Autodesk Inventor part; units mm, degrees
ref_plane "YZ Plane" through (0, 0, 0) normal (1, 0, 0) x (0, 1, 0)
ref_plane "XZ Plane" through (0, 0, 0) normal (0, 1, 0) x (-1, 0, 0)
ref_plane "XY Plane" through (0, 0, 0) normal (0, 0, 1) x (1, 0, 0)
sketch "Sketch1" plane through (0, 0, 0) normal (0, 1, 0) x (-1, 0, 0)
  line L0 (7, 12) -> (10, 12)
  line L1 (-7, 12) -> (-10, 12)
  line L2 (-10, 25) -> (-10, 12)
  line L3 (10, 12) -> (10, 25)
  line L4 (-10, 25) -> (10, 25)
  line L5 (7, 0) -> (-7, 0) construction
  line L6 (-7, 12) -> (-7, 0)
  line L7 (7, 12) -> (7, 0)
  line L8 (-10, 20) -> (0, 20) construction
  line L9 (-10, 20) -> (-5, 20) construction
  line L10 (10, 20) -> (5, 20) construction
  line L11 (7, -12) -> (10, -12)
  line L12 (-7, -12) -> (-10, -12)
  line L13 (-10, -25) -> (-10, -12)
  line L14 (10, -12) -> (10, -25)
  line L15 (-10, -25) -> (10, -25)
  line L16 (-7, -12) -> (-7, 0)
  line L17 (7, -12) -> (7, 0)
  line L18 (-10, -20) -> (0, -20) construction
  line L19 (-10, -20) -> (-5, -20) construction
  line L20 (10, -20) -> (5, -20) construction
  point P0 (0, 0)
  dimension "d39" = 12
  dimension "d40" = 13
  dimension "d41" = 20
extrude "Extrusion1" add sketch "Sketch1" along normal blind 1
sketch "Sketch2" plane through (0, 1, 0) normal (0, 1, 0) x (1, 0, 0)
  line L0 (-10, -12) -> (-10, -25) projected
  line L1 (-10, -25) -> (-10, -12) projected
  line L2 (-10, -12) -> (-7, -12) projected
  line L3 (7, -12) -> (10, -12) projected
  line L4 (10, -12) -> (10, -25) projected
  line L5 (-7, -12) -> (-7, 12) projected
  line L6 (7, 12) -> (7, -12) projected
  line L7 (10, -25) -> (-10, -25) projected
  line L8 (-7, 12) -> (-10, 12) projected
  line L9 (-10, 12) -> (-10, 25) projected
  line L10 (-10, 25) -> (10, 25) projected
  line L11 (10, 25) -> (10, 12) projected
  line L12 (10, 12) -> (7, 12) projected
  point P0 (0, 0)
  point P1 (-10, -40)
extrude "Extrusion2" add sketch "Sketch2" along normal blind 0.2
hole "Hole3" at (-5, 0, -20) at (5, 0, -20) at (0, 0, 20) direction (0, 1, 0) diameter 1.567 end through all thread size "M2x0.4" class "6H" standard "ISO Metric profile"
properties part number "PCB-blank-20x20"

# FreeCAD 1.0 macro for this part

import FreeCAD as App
import Part
import Sketcher
from FreeCAD import Vector

doc = App.newDocument("Part")
body = doc.addObject("PartDesign::Body", "Body")

sketch1 = body.newObject("Sketcher::SketchObject", "Sketch")
sketch1.AttachmentSupport = (doc.getObject("XZ_Plane"), [""])
sketch1.MapMode = "FlatFace"
sketch1.addGeometry([
    Part.LineSegment(Vector(-7, -12, 0), Vector(-7, 12, 0)),
    Part.LineSegment(Vector(-7, 12, 0), Vector(-10, 12, 0)),
    Part.LineSegment(Vector(-10, 12, 0), Vector(-10, 25, 0)),
    Part.LineSegment(Vector(-10, 25, 0), Vector(10, 25, 0)),
    Part.LineSegment(Vector(10, 25, 0), Vector(10, 12, 0)),
    Part.LineSegment(Vector(10, 12, 0), Vector(7, 12, 0)),
    Part.LineSegment(Vector(7, 12, 0), Vector(7, -12, 0)),
    Part.LineSegment(Vector(7, -12, 0), Vector(10, -12, 0)),
    Part.LineSegment(Vector(10, -12, 0), Vector(10, -25, 0)),
    Part.LineSegment(Vector(10, -25, 0), Vector(-10, -25, 0)),
    Part.LineSegment(Vector(-10, -25, 0), Vector(-10, -12, 0)),
    Part.LineSegment(Vector(-10, -12, 0), Vector(-7, -12, 0)),
], False)
sketch1.addConstraint([
    Sketcher.Constraint("Coincident", 0, 2, 1, 1),
    Sketcher.Constraint("Coincident", 1, 2, 2, 1),
    Sketcher.Constraint("Coincident", 2, 2, 3, 1),
    Sketcher.Constraint("Coincident", 3, 2, 4, 1),
    Sketcher.Constraint("Coincident", 4, 2, 5, 1),
    Sketcher.Constraint("Coincident", 5, 2, 6, 1),
    Sketcher.Constraint("Coincident", 6, 2, 7, 1),
    Sketcher.Constraint("Coincident", 7, 2, 8, 1),
    Sketcher.Constraint("Coincident", 8, 2, 9, 1),
    Sketcher.Constraint("Coincident", 9, 2, 10, 1),
    Sketcher.Constraint("Coincident", 10, 2, 11, 1),
    Sketcher.Constraint("Coincident", 11, 2, 0, 1),
    Sketcher.Constraint("Vertical", 0),
    Sketcher.Constraint("Horizontal", 1),
    Sketcher.Constraint("Vertical", 2),
    Sketcher.Constraint("Horizontal", 3),
    Sketcher.Constraint("Vertical", 4),
    Sketcher.Constraint("Horizontal", 5),
    Sketcher.Constraint("Vertical", 6),
    Sketcher.Constraint("Horizontal", 7),
    Sketcher.Constraint("Vertical", 8),
    Sketcher.Constraint("Horizontal", 9),
    Sketcher.Constraint("Vertical", 10),
    Sketcher.Constraint("Horizontal", 11),
    Sketcher.Constraint("Symmetric", 0, 2, 6, 2, -1, 1),
    Sketcher.Constraint("Symmetric", 2, 2, 8, 2, -1, 1),
    Sketcher.Constraint("Symmetric", 4, 2, 10, 2, -1, 1),
    Sketcher.Constraint("Symmetric", 1, 2, 4, 2, -2),
    Sketcher.Constraint("DistanceX", 3, 1, 3, 2, 20.0),
    Sketcher.Constraint("DistanceY", 2, 1, 2, 2, 13.0),
    Sketcher.Constraint("DistanceY", -1, 1, 0, 2, 12.0),
    Sketcher.Constraint("DistanceX", 1, 2, 1, 1, 3.0),
])
pad1 = body.newObject("PartDesign::Pad", "Pad")
pad1.Profile = sketch1
pad1.Length = 1
pad1.Reversed = True

sketch2 = body.newObject("Sketcher::SketchObject", "Sketch001")
sketch2.AttachmentSupport = (doc.getObject("XZ_Plane"), [""])
sketch2.MapMode = "FlatFace"
sketch2.AttachmentOffset = App.Placement(Vector(0, 0, -1), App.Rotation())
sketch2.addGeometry([
    Part.LineSegment(Vector(-7, 12, 0), Vector(-10, 12, 0)),
    Part.LineSegment(Vector(-10, 12, 0), Vector(-10, 25, 0)),
    Part.LineSegment(Vector(-10, 25, 0), Vector(10, 25, 0)),
    Part.LineSegment(Vector(10, 25, 0), Vector(10, 12, 0)),
    Part.LineSegment(Vector(10, 12, 0), Vector(7, 12, 0)),
    Part.LineSegment(Vector(7, 12, 0), Vector(7, -12, 0)),
    Part.LineSegment(Vector(7, -12, 0), Vector(10, -12, 0)),
    Part.LineSegment(Vector(10, -12, 0), Vector(10, -25, 0)),
    Part.LineSegment(Vector(10, -25, 0), Vector(-10, -25, 0)),
    Part.LineSegment(Vector(-10, -25, 0), Vector(-10, -12, 0)),
    Part.LineSegment(Vector(-10, -12, 0), Vector(-7, -12, 0)),
    Part.LineSegment(Vector(-7, -12, 0), Vector(-7, 12, 0)),
], False)
sketch2.addConstraint([
    Sketcher.Constraint("Coincident", 0, 2, 1, 1),
    Sketcher.Constraint("Coincident", 1, 2, 2, 1),
    Sketcher.Constraint("Coincident", 2, 2, 3, 1),
    Sketcher.Constraint("Coincident", 3, 2, 4, 1),
    Sketcher.Constraint("Coincident", 4, 2, 5, 1),
    Sketcher.Constraint("Coincident", 5, 2, 6, 1),
    Sketcher.Constraint("Coincident", 6, 2, 7, 1),
    Sketcher.Constraint("Coincident", 7, 2, 8, 1),
    Sketcher.Constraint("Coincident", 8, 2, 9, 1),
    Sketcher.Constraint("Coincident", 9, 2, 10, 1),
    Sketcher.Constraint("Coincident", 10, 2, 11, 1),
    Sketcher.Constraint("Coincident", 11, 2, 0, 1),
    Sketcher.Constraint("Horizontal", 0),
    Sketcher.Constraint("Vertical", 1),
    Sketcher.Constraint("Horizontal", 2),
    Sketcher.Constraint("Vertical", 3),
    Sketcher.Constraint("Horizontal", 4),
    Sketcher.Constraint("Vertical", 5),
    Sketcher.Constraint("Horizontal", 6),
    Sketcher.Constraint("Vertical", 7),
    Sketcher.Constraint("Horizontal", 8),
    Sketcher.Constraint("Vertical", 9),
    Sketcher.Constraint("Horizontal", 10),
    Sketcher.Constraint("Vertical", 11),
    Sketcher.Constraint("Symmetric", 0, 2, 6, 2, -1, 1),
    Sketcher.Constraint("Symmetric", 2, 2, 8, 2, -1, 1),
    Sketcher.Constraint("Symmetric", 4, 2, 10, 2, -1, 1),
    Sketcher.Constraint("Symmetric", 0, 2, 3, 2, -2),
    Sketcher.Constraint("DistanceX", 0, 2, 0, 1, 3.0),
    Sketcher.Constraint("DistanceX", 2, 1, 2, 2, 20.0),
    Sketcher.Constraint("DistanceY", 1, 1, 1, 2, 13.0),
    Sketcher.Constraint("DistanceY", 5, 2, 5, 1, 24.0),
])
pad2 = body.newObject("PartDesign::Pad", "Pad001")
pad2.Profile = sketch2
pad2.Length = 0.2
pad2.Reversed = True

sketch3 = body.newObject("Sketcher::SketchObject", "Sketch002")
sketch3.AttachmentSupport = (doc.getObject("XZ_Plane"), [""])
sketch3.MapMode = "FlatFace"
sketch3.addGeometry([
    Part.Circle(Vector(-5, -20, 0), Vector(0, 0, 1), 0.7835),
    Part.Circle(Vector(5, -20, 0), Vector(0, 0, 1), 0.7835),
    Part.Circle(Vector(0, 20, 0), Vector(0, 0, 1), 0.7835),
], False)
sketch3.addConstraint([
    Sketcher.Constraint("Equal", 0, 1),
    Sketcher.Constraint("Equal", 1, 2),
    Sketcher.Constraint("Symmetric", 0, 3, 1, 3, -2),
    Sketcher.Constraint("PointOnObject", 2, 3, -2),
    Sketcher.Constraint("Diameter", 0, 1.567),
    Sketcher.Constraint("DistanceX", 0, 3, -1, 1, 5.0),
    Sketcher.Constraint("DistanceY", 0, 3, -1, 1, 20.0),
    Sketcher.Constraint("DistanceY", -1, 1, 2, 3, 20.0),
])
doc.recompute()
hole = body.newObject("PartDesign::Hole", "Hole")
hole.Profile = sketch3
hole.ThreadType = "None"
hole.Diameter = 1.567
hole.DepthType = "ThroughAll"

doc.recompute()
